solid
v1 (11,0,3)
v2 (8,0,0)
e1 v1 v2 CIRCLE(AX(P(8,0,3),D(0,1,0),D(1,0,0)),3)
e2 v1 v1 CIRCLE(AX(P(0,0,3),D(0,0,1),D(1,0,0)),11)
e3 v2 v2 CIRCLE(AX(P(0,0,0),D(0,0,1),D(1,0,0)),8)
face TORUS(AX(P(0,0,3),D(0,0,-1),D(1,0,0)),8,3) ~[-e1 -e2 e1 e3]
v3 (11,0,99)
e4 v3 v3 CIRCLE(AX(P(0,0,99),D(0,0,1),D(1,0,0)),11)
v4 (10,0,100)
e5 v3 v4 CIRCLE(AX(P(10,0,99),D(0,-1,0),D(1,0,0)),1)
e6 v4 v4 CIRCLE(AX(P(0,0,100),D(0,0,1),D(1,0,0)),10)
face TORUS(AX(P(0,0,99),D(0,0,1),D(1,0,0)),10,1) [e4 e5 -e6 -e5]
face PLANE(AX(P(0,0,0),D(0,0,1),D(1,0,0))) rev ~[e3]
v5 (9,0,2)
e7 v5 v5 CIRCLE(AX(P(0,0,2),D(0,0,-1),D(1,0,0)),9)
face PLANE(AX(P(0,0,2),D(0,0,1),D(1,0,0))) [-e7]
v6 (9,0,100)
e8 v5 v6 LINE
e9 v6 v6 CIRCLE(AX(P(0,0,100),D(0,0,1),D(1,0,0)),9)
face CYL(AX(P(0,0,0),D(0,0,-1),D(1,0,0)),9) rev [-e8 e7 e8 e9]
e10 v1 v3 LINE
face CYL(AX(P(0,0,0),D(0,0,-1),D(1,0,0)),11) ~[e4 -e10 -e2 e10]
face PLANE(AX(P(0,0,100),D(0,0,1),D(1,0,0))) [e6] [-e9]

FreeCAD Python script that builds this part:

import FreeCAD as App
import Part
import Sketcher
Q = App.Units.Quantity


def edges_at(feature, points):
    """Names of the edges that pass closest to the given points."""
    edges = feature.Shape.Edges
    near = lambda p: min(range(len(edges)), key=lambda i: edges[i].distToShape(Part.Vertex(*p))[0])
    return sorted({f"Edge{near(p) + 1}" for p in points})


def faces_at(feature, points):
    """Names of the faces that lie closest to the given points."""
    faces = feature.Shape.Faces
    near = lambda p: min(range(len(faces)), key=lambda i: faces[i].distToShape(Part.Vertex(*p))[0])
    return sorted({f"Face{near(p) + 1}" for p in points})

doc = App.newDocument("Part")
body = doc.addObject("PartDesign::Body", "Body")

# Sketch on XY plane
sketch1 = body.newObject("Sketcher::SketchObject", "Sketch")
sketch1.AttachmentSupport = (doc.getObject("XY_Plane"), [""])
sketch1.MapMode = "FlatFace"
sketch1.addGeometry(Part.Circle(App.Vector(0, 0, 0), App.Vector(0, 0, 1), 11), False)
sketch1.addConstraint(Sketcher.Constraint("Coincident", 0, 3, -1, 1))
sketch1.addConstraint(Sketcher.Constraint("Diameter", 0, Q("22 mm")))
pad1 = body.newObject("PartDesign::Pad", "Pad")
pad1.Profile = sketch1
pad1.Length = 100
doc.recompute()

thickness = body.newObject("PartDesign::Thickness", "Thickness")
thickness.Base = (pad1, faces_at(pad1, [(0, 0, 100)]))
thickness.Value = 2
thickness.Reversed = True
thickness.Join = "Arc"
doc.recompute()

fillet = body.newObject("PartDesign::Fillet", "Fillet")
fillet.Base = (thickness, edges_at(thickness, [(-11, 0, 0)]))
fillet.Radius = 3
doc.recompute()

fillet2 = body.newObject("PartDesign::Fillet", "Fillet001")
fillet2.Base = (fillet, edges_at(fillet, [(-11, 0, 100)]))
fillet2.Radius = 1

doc.recompute()
